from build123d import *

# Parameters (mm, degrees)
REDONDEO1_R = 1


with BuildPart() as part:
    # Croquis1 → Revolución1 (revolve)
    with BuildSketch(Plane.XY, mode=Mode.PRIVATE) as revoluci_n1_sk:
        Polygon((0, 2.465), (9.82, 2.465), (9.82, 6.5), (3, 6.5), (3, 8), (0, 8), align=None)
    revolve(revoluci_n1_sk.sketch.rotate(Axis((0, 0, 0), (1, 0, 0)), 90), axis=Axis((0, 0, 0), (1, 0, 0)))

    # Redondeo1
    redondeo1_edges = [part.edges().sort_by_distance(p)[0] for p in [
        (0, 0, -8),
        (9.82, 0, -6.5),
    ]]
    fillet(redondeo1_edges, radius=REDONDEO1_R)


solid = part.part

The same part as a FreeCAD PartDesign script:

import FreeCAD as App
import Part
import Sketcher

V = App.Vector
Q = App.Units.Quantity


def edges_at(feature, points):
    """Names of the edges that pass closest to the given points."""
    edges = feature.Shape.Edges
    near = lambda p: min(range(len(edges)), key=lambda i: edges[i].distToShape(Part.Vertex(*p))[0])
    return sorted({f"Edge{near(p) + 1}" for p in points})

doc = App.newDocument("Part")
body = doc.addObject("PartDesign::Body", "Body")

# Sketch on XY plane
sketch1 = doc.addObject("Sketcher::SketchObject", "Sketch")
body.addObject(sketch1)
sketch1.AttachmentSupport = (doc.XY_Plane, [""])
sketch1.MapMode = "FlatFace"
sketch1.addGeometry(Part.LineSegment(V(0, 2.5, 0), V(9.8, 2.5, 0)), False)
sketch1.addGeometry(Part.LineSegment(V(9.8, 2.5, 0), V(9.8, 6.5, 0)), False)
sketch1.addGeometry(Part.LineSegment(V(9.8, 6.5, 0), V(3, 6.5, 0)), False)
sketch1.addGeometry(Part.LineSegment(V(3, 6.5, 0), V(3, 8, 0)), False)
sketch1.addGeometry(Part.LineSegment(V(3, 8, 0), V(0, 8, 0)), False)
sketch1.addGeometry(Part.LineSegment(V(0, 8, 0), V(0, 2.5, 0)), False)
sketch1.addConstraint(Sketcher.Constraint("Coincident", 0, 2, 1, 1))
sketch1.addConstraint(Sketcher.Constraint("Coincident", 1, 2, 2, 1))
sketch1.addConstraint(Sketcher.Constraint("Coincident", 2, 2, 3, 1))
sketch1.addConstraint(Sketcher.Constraint("Coincident", 3, 2, 4, 1))
sketch1.addConstraint(Sketcher.Constraint("Coincident", 4, 2, 5, 1))
sketch1.addConstraint(Sketcher.Constraint("Coincident", 5, 2, 0, 1))
sketch1.addConstraint(Sketcher.Constraint("Horizontal", 0))
sketch1.addConstraint(Sketcher.Constraint("Vertical", 1))
sketch1.addConstraint(Sketcher.Constraint("Horizontal", 2))
sketch1.addConstraint(Sketcher.Constraint("Vertical", 3))
sketch1.addConstraint(Sketcher.Constraint("Horizontal", 4))
sketch1.addConstraint(Sketcher.Constraint("Vertical", 5))
sketch1.addConstraint(Sketcher.Constraint("PointOnObject", 4, 2, -2))
sketch1.addConstraint(Sketcher.Constraint("DistanceX", 4, 2, 4, 1, Q("3 mm")))
sketch1.addConstraint(Sketcher.Constraint("DistanceY", 3, 1, 3, 2, Q("1.5 mm")))
sketch1.addConstraint(Sketcher.Constraint("DistanceY", -1, 1, 3, 2, Q("8 mm")))
sketch1.addConstraint(Sketcher.Constraint("DistanceX", 0, 1, 0, 2, Q("9.82 mm")))
sketch1.addConstraint(Sketcher.Constraint("DistanceY", 1, 1, 1, 2, Q("4.035 mm")))
revolution = doc.addObject("PartDesign::Revolution", "Revolution")
body.addObject(revolution)
revolution.Profile = sketch1
revolution.ReferenceAxis = (sketch1, ["H_Axis"])
revolution.Angle = 360
doc.recompute()

fillet = doc.addObject("PartDesign::Fillet", "Fillet")
body.addObject(fillet)
fillet.Base = (revolution, edges_at(revolution, [(0, 0, -8), (9.82, 0, -6.5)]))
fillet.Radius = 1

doc.recompute()
